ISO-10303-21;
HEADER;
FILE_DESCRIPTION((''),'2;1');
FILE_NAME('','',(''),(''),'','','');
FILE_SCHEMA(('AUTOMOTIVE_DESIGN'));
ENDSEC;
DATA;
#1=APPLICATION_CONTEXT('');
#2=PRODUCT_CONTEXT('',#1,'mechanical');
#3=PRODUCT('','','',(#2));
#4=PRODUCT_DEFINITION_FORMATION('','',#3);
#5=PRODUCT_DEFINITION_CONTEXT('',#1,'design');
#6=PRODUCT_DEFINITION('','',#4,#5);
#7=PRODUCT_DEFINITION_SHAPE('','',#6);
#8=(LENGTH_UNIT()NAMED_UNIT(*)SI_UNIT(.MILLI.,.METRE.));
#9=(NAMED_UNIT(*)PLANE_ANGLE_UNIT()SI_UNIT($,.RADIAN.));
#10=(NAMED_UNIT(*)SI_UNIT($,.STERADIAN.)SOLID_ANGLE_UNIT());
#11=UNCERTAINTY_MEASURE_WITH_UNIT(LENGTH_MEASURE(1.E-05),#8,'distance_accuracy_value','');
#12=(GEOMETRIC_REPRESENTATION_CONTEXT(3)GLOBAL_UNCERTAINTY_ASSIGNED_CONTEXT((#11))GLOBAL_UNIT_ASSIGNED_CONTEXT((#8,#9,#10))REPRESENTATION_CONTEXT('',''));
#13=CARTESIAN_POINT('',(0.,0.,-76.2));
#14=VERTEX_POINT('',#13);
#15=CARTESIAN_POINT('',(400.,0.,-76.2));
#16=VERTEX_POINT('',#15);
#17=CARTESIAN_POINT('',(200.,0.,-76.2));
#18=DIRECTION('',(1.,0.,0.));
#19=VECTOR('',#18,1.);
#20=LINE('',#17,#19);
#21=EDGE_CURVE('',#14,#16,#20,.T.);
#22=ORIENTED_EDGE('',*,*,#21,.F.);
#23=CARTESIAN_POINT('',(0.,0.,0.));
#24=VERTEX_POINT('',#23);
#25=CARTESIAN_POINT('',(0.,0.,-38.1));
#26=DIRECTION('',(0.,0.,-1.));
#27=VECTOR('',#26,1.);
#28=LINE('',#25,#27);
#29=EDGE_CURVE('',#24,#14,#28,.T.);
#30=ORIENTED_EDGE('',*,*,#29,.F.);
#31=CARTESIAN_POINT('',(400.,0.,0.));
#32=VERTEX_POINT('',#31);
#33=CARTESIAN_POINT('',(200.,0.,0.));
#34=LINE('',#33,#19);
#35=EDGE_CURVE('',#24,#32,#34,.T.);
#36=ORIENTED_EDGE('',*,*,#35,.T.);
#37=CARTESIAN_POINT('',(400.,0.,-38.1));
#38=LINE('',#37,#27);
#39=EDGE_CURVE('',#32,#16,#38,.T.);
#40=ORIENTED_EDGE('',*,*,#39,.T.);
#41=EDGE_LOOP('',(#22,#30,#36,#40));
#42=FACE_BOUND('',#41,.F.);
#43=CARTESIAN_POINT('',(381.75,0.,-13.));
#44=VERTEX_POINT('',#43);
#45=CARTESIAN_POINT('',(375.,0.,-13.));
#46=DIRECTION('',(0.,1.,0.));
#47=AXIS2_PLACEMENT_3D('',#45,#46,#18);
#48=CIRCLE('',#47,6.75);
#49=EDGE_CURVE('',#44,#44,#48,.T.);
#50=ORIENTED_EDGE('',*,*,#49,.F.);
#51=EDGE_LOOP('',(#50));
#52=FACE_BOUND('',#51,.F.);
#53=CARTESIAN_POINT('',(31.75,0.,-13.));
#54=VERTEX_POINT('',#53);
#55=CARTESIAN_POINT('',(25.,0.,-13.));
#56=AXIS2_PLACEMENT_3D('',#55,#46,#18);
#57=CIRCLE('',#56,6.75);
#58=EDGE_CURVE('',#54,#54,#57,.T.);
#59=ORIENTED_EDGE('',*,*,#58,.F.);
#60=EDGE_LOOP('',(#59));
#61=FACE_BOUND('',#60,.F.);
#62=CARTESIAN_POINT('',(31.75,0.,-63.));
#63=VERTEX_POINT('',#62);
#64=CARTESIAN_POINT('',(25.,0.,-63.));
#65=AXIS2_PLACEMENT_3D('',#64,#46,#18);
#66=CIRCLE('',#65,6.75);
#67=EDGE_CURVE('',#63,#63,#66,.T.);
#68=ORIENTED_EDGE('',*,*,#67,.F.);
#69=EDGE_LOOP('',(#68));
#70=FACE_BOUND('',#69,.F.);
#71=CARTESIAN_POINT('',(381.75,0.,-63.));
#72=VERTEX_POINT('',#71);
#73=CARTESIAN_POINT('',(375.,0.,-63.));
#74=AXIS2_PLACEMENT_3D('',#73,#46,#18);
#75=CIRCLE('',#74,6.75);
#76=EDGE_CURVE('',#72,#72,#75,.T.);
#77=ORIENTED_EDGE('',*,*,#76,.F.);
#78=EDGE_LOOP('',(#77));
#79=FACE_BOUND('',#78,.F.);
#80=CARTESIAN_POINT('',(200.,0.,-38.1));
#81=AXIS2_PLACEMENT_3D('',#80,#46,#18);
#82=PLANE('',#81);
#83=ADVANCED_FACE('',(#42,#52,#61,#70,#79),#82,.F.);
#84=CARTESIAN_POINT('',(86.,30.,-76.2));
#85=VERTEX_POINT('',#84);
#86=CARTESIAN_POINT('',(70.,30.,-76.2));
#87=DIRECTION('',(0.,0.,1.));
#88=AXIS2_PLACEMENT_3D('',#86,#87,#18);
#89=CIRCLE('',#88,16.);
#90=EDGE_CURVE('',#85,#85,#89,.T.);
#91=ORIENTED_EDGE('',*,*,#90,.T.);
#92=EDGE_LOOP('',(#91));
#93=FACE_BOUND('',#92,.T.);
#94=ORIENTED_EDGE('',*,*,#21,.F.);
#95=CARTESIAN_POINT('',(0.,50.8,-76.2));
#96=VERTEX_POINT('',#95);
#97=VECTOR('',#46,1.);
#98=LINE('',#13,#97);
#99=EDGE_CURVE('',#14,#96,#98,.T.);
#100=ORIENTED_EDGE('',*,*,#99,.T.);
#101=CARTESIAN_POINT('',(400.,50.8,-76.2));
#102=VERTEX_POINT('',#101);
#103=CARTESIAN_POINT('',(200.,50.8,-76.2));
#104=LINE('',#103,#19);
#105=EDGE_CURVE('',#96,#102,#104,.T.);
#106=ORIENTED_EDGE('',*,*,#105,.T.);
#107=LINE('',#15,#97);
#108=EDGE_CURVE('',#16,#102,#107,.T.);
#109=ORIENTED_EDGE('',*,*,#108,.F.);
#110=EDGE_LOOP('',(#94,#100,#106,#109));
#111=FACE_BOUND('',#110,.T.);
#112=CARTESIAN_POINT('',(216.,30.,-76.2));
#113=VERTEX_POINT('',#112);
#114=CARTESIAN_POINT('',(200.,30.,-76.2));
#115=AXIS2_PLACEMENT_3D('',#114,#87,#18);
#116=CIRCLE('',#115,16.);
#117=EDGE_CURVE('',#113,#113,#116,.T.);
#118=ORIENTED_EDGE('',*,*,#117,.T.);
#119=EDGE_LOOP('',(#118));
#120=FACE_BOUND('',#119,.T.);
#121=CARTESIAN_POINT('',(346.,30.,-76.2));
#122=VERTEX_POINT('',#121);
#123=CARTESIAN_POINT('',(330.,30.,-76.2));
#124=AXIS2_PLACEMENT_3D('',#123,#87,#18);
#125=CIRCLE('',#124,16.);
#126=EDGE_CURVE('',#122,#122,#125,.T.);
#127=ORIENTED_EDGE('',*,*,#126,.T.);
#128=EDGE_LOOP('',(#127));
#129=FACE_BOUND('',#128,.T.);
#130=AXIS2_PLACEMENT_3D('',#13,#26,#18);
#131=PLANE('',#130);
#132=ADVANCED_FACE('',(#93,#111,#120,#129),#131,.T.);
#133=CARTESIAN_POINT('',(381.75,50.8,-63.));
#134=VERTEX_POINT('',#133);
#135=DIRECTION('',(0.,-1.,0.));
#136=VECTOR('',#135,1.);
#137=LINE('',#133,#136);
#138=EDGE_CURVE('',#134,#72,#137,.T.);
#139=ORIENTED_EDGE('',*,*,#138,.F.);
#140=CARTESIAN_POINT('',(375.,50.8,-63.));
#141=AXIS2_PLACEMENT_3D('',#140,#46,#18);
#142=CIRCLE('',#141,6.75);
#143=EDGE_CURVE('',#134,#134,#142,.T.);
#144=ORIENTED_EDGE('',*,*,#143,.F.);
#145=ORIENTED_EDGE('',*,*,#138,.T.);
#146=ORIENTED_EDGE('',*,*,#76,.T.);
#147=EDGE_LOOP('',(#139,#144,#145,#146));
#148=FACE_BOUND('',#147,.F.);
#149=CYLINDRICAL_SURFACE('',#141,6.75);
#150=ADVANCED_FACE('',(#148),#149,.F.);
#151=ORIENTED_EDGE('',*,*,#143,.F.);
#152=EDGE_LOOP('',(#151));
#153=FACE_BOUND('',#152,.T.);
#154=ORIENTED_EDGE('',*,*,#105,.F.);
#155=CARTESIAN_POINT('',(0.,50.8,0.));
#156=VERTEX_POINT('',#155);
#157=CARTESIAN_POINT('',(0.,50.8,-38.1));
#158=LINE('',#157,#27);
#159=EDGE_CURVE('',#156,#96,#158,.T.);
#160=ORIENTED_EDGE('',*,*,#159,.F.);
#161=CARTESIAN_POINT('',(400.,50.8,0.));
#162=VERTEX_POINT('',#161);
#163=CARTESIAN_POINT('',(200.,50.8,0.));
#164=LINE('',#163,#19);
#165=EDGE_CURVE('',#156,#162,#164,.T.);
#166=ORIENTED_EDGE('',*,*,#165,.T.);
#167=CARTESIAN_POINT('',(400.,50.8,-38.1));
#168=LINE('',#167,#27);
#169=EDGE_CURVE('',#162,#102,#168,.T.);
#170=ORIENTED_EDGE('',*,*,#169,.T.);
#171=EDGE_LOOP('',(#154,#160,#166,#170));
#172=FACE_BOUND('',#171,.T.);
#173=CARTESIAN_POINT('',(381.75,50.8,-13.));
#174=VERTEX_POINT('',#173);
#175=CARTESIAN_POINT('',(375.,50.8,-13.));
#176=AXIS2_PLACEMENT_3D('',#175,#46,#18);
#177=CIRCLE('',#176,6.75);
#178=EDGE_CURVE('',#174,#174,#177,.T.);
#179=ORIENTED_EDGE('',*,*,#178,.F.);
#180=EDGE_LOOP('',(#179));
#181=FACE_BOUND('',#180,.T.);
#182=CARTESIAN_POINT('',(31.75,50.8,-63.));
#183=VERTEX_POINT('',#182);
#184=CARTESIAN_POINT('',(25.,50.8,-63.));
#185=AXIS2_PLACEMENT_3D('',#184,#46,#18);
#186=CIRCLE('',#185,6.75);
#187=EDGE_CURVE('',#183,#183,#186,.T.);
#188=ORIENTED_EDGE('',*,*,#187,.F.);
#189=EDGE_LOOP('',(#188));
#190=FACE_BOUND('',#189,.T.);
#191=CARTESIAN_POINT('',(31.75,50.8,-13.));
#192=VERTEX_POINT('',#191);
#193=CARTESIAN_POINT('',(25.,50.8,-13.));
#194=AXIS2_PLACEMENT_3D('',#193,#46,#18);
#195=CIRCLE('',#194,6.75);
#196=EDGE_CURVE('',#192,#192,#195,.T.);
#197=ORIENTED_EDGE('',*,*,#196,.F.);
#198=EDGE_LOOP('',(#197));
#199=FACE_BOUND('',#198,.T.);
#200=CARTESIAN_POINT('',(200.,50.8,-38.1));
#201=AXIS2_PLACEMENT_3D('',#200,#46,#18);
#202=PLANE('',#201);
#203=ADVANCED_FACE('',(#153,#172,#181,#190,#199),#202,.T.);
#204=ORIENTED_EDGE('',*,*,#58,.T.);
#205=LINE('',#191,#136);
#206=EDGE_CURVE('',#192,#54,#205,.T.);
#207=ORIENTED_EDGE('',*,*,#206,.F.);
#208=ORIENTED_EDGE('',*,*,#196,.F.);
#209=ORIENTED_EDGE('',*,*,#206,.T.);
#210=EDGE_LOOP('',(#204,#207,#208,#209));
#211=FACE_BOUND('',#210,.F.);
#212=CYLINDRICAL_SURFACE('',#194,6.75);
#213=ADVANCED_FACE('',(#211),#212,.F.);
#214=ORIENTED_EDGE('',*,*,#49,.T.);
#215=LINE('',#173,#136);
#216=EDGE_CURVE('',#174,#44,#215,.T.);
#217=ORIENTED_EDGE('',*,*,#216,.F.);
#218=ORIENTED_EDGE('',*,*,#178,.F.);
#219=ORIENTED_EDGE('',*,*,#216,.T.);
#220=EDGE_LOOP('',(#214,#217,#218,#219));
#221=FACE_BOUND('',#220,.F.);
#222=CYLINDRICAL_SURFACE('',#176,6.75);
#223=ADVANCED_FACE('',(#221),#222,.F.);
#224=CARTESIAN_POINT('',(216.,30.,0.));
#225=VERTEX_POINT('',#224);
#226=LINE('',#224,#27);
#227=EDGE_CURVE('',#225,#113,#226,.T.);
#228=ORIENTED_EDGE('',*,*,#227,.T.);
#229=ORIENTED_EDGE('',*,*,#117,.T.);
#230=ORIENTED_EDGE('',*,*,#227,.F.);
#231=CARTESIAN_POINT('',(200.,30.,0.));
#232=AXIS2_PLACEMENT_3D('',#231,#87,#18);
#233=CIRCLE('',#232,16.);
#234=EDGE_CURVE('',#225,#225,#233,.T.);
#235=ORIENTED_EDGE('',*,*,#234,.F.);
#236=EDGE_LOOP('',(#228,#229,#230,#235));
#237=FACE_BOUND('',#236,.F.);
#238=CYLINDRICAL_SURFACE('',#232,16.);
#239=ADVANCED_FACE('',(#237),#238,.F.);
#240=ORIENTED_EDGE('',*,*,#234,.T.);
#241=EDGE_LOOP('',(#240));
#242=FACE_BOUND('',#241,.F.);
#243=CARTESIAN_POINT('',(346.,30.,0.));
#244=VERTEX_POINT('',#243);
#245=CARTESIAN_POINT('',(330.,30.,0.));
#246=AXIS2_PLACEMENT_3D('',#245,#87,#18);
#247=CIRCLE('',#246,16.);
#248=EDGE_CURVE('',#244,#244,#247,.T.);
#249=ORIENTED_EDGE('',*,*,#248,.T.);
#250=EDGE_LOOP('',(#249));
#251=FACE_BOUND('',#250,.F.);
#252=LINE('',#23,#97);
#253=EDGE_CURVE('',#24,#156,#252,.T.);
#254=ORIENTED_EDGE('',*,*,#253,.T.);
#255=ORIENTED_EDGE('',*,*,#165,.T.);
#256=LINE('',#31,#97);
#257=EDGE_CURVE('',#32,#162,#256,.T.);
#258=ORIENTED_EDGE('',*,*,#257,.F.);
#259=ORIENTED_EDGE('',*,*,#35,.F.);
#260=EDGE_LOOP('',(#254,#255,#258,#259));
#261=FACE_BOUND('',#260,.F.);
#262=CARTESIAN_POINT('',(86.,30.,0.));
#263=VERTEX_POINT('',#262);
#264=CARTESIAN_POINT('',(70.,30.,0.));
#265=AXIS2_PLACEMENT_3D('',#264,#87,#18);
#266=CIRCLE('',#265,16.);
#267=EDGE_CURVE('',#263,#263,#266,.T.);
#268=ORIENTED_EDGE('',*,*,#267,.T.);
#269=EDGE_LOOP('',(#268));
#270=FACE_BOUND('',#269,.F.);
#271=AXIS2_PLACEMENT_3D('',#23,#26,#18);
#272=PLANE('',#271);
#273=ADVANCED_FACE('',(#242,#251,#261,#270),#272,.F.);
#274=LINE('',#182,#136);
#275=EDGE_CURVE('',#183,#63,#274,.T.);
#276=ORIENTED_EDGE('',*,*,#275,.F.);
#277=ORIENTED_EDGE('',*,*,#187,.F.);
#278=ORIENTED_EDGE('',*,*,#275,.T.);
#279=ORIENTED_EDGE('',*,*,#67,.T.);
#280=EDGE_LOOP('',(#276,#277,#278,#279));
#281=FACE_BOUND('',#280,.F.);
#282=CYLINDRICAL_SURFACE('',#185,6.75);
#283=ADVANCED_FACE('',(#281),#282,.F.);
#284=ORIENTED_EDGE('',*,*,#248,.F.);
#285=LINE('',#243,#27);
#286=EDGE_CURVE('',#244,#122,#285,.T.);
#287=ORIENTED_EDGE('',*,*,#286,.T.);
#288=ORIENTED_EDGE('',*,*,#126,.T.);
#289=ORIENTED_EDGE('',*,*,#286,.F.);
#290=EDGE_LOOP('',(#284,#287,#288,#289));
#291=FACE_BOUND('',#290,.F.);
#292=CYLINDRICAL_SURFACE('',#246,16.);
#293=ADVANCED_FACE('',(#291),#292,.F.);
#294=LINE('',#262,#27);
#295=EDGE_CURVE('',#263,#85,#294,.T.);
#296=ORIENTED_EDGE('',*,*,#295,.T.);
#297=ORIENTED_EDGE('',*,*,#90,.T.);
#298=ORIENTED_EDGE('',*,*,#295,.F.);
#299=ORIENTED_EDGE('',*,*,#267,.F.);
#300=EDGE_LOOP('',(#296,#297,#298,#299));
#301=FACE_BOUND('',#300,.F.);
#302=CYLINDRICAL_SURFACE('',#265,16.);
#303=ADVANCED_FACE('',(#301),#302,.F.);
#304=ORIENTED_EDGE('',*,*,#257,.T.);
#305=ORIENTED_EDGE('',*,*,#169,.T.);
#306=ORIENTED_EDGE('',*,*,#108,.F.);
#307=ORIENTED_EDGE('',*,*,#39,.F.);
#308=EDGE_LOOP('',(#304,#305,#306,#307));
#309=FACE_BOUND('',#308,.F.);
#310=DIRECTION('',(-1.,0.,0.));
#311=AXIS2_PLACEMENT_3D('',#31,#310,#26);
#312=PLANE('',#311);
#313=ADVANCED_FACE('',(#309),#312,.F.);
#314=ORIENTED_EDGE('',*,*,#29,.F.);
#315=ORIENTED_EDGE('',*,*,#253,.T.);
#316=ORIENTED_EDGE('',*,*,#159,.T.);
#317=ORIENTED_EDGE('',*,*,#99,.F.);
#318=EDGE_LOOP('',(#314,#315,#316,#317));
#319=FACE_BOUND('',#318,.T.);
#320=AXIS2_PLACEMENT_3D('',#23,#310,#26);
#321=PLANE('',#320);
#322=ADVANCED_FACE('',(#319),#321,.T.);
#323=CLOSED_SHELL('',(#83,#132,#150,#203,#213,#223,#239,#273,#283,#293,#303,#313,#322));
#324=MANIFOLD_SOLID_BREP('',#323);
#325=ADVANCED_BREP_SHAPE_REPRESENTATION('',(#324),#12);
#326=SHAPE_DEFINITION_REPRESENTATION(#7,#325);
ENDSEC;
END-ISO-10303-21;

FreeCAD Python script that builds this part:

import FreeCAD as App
import Part
import Sketcher

V = App.Vector
Q = App.Units.Quantity


def add_polygon(sketch, points):
    """Adds a closed chain of lines whose ends are joined by coincident constraints."""
    first, n = sketch.GeometryCount, len(points)
    for a, b in zip(points, points[1:] + points[:1]):
        sketch.addGeometry(Part.LineSegment(App.Vector(*a, 0), App.Vector(*b, 0)), False)
    for i in range(n):
        sketch.addConstraint(Sketcher.Constraint("Coincident", first + i, 2, first + (i + 1) % n, 1))

doc = App.newDocument("Part")
body = doc.addObject("PartDesign::Body", "Body")

sketch1 = doc.addObject("Sketcher::SketchObject", "Sketch")
body.addObject(sketch1)
sketch1.AttachmentSupport = (doc.XZ_Plane, [""])
sketch1.MapMode = "FlatFace"
add_polygon(sketch1, [(0, -76), (0, 0), (400, 0), (400, -76)])
sketch1.addConstraint(Sketcher.Constraint("Vertical", 0))
sketch1.addConstraint(Sketcher.Constraint("Horizontal", 1))
sketch1.addConstraint(Sketcher.Constraint("Vertical", 2))
sketch1.addConstraint(Sketcher.Constraint("Horizontal", 3))
sketch1.addConstraint(Sketcher.Constraint("Coincident", 0, 2, -1, 1))
sketch1.addConstraint(Sketcher.Constraint("DistanceX", 1, 1, 1, 2, Q("400 mm")))
sketch1.addConstraint(Sketcher.Constraint("DistanceY", 0, 1, 0, 2, Q("76.2 mm")))
pad1 = doc.addObject("PartDesign::Pad", "Pad")
body.addObject(pad1)
pad1.Profile = sketch1
pad1.Length = 50.8
pad1.Reversed = True

sketch2 = doc.addObject("Sketcher::SketchObject", "Sketch001")
body.addObject(sketch2)
sketch2.AttachmentSupport = (doc.XZ_Plane, [""])
sketch2.MapMode = "FlatFace"
sketch2.AttachmentOffset = App.Placement(V(0, 0, -50.8), App.Rotation())
sketch2.addGeometry(Part.Circle(V(25, -63, 0), V(0, 0, 1), 7), False)
sketch2.addGeometry(Part.Circle(V(25, -13, 0), V(0, 0, 1), 7), False)
sketch2.addGeometry(Part.Circle(V(375, -63, 0), V(0, 0, 1), 7), False)
sketch2.addGeometry(Part.Circle(V(375, -13, 0), V(0, 0, 1), 7), False)
sketch2.addConstraint(Sketcher.Constraint("Equal", 0, 1))
sketch2.addConstraint(Sketcher.Constraint("Equal", 1, 2))
sketch2.addConstraint(Sketcher.Constraint("Equal", 2, 3))
sketch2.addConstraint(Sketcher.Constraint("Horizontal", 0, 3, 2, 3))
sketch2.addConstraint(Sketcher.Constraint("Horizontal", 1, 3, 3, 3))
sketch2.addConstraint(Sketcher.Constraint("Vertical", 0, 3, 1, 3))
sketch2.addConstraint(Sketcher.Constraint("Vertical", 2, 3, 3, 3))
sketch2.addConstraint(Sketcher.Constraint("Diameter", 0, Q("13.5 mm")))
sketch2.addConstraint(Sketcher.Constraint("DistanceX", -1, 1, 0, 3, Q("25 mm")))
sketch2.addConstraint(Sketcher.Constraint("DistanceY", 0, 3, -1, 1, Q("63 mm")))
sketch2.addConstraint(Sketcher.Constraint("DistanceY", 1, 3, -1, 1, Q("13 mm")))
sketch2.addConstraint(Sketcher.Constraint("DistanceX", -1, 1, 2, 3, Q("375 mm")))
pocket1 = doc.addObject("PartDesign::Pocket", "Pocket")
body.addObject(pocket1)
pocket1.Profile = sketch2
pocket1.Length = 50.8
pocket1.Reversed = True

sketch3 = doc.addObject("Sketcher::SketchObject", "Sketch002")
body.addObject(sketch3)
sketch3.AttachmentSupport = (doc.XY_Plane, [""])
sketch3.MapMode = "FlatFace"
sketch3.addGeometry(Part.Circle(V(200, 30, 0), V(0, 0, 1), 16), False)
sketch3.addGeometry(Part.Circle(V(70, 30, 0), V(0, 0, 1), 16), False)
sketch3.addGeometry(Part.Circle(V(330, 30, 0), V(0, 0, 1), 16), False)
sketch3.addConstraint(Sketcher.Constraint("Equal", 0, 1))
sketch3.addConstraint(Sketcher.Constraint("Equal", 1, 2))
sketch3.addConstraint(Sketcher.Constraint("Horizontal", 0, 3, 1, 3))
sketch3.addConstraint(Sketcher.Constraint("Horizontal", 1, 3, 2, 3))
sketch3.addConstraint(Sketcher.Constraint("Diameter", 0, Q("32 mm")))
sketch3.addConstraint(Sketcher.Constraint("DistanceX", -1, 1, 0, 3, Q("200 mm")))
sketch3.addConstraint(Sketcher.Constraint("DistanceY", -1, 1, 0, 3, Q("30 mm")))
sketch3.addConstraint(Sketcher.Constraint("DistanceX", -1, 1, 1, 3, Q("70 mm")))
sketch3.addConstraint(Sketcher.Constraint("DistanceX", -1, 1, 2, 3, Q("330 mm")))
pocket2 = doc.addObject("PartDesign::Pocket", "Pocket001")
body.addObject(pocket2)
pocket2.Profile = sketch3
pocket2.Type = "ThroughAll"

doc.recompute()
